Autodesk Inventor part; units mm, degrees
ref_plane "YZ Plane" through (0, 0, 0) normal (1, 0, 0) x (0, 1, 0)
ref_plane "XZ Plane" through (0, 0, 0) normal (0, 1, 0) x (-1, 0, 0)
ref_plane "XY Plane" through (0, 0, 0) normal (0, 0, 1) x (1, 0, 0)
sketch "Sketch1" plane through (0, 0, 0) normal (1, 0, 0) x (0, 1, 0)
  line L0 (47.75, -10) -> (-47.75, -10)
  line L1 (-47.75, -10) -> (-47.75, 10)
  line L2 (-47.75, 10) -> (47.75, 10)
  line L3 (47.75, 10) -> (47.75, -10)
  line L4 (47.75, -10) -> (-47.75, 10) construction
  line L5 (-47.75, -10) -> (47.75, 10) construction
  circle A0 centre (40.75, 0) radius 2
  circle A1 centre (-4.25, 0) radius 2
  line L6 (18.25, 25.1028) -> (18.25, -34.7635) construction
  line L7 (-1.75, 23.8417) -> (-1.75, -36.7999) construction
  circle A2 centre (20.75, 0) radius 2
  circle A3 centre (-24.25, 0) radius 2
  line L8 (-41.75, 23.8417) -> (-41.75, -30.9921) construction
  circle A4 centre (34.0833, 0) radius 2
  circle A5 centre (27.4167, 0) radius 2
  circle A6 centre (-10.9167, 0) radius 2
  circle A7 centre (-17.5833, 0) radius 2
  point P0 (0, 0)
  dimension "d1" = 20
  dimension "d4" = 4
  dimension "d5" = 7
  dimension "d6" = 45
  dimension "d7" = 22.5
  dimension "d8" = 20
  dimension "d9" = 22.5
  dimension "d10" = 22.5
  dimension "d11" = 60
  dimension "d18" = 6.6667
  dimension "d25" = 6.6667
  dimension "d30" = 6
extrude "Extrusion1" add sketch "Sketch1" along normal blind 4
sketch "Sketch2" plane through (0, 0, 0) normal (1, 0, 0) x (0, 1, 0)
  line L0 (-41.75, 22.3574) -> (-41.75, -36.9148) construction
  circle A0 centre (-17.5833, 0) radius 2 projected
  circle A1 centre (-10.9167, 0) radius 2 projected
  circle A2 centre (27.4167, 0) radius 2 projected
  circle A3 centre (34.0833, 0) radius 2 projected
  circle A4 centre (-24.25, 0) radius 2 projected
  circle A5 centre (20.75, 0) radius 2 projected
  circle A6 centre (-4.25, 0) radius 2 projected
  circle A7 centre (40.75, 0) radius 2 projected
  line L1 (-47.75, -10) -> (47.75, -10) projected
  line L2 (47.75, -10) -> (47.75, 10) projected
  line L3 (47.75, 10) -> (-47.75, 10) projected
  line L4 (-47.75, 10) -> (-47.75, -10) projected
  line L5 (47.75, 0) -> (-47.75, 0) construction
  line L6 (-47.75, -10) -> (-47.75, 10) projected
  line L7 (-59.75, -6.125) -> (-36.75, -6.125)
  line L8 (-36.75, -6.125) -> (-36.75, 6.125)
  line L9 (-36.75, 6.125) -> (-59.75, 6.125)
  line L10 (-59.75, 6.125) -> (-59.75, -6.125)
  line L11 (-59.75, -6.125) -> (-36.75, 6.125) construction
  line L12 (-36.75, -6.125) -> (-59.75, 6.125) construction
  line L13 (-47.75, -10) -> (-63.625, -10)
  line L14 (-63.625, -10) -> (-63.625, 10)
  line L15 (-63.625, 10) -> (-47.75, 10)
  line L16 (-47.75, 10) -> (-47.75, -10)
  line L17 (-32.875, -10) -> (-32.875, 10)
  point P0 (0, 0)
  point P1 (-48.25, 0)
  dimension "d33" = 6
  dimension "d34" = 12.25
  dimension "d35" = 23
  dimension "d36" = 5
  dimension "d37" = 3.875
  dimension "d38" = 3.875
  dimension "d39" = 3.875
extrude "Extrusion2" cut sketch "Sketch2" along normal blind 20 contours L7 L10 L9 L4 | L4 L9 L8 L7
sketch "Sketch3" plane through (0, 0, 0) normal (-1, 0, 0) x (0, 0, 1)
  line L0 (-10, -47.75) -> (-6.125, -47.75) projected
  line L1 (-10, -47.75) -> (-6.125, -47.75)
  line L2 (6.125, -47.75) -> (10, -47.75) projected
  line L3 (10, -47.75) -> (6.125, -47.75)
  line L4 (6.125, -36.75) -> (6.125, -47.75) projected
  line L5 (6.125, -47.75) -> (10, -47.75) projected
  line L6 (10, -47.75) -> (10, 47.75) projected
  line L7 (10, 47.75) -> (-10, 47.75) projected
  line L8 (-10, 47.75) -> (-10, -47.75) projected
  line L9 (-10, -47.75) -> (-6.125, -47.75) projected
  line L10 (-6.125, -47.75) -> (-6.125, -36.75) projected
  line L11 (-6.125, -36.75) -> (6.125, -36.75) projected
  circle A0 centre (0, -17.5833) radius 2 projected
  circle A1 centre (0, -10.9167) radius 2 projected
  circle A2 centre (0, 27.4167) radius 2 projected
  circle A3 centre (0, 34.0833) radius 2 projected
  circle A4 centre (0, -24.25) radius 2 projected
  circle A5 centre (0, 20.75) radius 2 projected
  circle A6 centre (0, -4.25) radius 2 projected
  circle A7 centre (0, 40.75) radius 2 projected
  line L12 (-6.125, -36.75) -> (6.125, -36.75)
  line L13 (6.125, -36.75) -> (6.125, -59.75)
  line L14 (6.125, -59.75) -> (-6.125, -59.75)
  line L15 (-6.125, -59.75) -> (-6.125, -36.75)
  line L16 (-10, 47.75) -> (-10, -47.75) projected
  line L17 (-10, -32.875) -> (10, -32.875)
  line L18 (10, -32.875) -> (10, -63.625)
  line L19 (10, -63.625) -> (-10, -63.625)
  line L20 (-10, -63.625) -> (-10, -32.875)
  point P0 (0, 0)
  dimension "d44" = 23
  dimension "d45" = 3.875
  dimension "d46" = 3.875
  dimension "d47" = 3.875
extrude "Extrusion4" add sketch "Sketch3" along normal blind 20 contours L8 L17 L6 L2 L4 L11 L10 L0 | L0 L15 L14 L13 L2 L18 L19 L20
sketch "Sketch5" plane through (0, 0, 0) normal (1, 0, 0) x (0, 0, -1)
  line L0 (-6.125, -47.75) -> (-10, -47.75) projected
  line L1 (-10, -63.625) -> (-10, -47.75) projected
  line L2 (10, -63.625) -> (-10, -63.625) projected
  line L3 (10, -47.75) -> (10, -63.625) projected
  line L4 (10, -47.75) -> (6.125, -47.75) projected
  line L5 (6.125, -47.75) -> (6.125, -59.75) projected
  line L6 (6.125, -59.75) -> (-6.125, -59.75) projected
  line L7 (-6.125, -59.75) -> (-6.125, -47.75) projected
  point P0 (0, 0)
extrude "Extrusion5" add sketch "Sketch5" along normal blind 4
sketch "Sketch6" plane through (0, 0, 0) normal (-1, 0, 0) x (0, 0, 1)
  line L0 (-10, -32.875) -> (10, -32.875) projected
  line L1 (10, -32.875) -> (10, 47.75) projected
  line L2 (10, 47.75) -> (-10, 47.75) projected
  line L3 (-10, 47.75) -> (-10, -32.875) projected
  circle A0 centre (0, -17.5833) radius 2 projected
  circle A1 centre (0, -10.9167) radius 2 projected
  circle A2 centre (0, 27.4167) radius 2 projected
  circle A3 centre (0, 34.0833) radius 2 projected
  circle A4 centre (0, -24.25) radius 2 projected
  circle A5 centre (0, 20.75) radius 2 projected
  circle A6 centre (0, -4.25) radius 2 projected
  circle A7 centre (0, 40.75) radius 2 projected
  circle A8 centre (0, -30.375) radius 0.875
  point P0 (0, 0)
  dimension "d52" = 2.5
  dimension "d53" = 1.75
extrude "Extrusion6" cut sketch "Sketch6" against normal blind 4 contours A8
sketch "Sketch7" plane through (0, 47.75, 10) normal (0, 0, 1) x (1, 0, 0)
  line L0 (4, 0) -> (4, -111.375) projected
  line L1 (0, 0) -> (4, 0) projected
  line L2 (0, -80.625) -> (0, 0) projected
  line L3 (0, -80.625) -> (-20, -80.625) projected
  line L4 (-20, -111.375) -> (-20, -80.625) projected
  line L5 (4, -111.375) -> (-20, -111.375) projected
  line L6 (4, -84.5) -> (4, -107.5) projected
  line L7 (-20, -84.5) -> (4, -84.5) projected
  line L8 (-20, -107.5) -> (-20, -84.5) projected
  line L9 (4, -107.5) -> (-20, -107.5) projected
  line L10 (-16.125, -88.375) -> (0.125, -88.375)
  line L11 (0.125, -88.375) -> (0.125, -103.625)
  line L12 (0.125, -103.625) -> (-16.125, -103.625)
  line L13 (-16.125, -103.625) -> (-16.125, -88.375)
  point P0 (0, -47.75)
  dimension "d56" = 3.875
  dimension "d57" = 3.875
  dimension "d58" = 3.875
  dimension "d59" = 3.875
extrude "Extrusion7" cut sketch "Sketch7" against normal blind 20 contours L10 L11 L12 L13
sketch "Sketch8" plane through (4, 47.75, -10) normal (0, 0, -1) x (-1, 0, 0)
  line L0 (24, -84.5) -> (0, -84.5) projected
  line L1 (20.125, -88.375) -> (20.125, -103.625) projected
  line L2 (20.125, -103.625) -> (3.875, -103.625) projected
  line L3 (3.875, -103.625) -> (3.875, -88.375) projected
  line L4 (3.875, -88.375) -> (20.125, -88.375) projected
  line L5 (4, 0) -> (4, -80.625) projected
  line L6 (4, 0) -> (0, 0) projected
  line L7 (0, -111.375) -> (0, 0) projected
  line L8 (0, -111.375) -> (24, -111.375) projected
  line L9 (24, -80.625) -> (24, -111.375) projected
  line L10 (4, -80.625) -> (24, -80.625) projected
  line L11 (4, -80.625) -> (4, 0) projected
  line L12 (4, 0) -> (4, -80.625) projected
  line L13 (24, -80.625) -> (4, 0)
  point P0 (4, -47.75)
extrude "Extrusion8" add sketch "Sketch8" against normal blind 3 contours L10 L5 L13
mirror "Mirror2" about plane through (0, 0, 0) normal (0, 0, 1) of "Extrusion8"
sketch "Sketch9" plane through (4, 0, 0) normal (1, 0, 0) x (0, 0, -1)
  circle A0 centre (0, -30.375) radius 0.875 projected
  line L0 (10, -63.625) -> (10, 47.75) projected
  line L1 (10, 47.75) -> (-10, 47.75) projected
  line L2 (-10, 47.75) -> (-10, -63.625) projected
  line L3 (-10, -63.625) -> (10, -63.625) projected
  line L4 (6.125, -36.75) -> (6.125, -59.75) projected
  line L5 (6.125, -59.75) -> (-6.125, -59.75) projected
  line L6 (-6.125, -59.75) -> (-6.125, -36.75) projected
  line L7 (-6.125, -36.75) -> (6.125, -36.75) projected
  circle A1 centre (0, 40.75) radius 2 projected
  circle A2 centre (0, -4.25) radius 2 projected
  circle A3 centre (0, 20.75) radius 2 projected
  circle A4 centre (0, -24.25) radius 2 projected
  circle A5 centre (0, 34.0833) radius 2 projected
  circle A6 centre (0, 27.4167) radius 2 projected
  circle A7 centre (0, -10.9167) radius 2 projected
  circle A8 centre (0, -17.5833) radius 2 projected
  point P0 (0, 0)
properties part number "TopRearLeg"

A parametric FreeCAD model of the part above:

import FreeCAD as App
import Part
import Sketcher
from FreeCAD import Vector
Q = App.Units.Quantity

doc = App.newDocument("Part")
body = doc.addObject("PartDesign::Body", "Body")

# Sketch on YZ plane
sketch1 = body.newObject("Sketcher::SketchObject", "Sketch")
sketch1.AttachmentSupport = (doc.getObject("YZ_Plane"), [""])
sketch1.MapMode = "FlatFace"
sketch1.addGeometry(Part.LineSegment(Vector(-47.8, -10, 0), Vector(47.8, -10, 0)), False)
sketch1.addGeometry(Part.LineSegment(Vector(47.8, -10, 0), Vector(47.8, 10, 0)), False)
sketch1.addGeometry(Part.LineSegment(Vector(47.8, 10, 0), Vector(-47.8, 10, 0)), False)
sketch1.addGeometry(Part.LineSegment(Vector(-47.8, 10, 0), Vector(-47.8, -10, 0)), False)
sketch1.addGeometry(Part.Circle(Vector(-24.2, 0, 0), Vector(0, 0, 1), 2), False)
sketch1.addGeometry(Part.Circle(Vector(-17.6, 0, 0), Vector(0, 0, 1), 2), False)
sketch1.addGeometry(Part.Circle(Vector(-10.9, 0, 0), Vector(0, 0, 1), 2), False)
sketch1.addGeometry(Part.Circle(Vector(-4.2, 0, 0), Vector(0, 0, 1), 2), False)
sketch1.addGeometry(Part.Circle(Vector(20.8, 0, 0), Vector(0, 0, 1), 2), False)
sketch1.addGeometry(Part.Circle(Vector(27.4, 0, 0), Vector(0, 0, 1), 2), False)
sketch1.addGeometry(Part.Circle(Vector(34.1, 0, 0), Vector(0, 0, 1), 2), False)
sketch1.addGeometry(Part.Circle(Vector(40.8, 0, 0), Vector(0, 0, 1), 2), False)
sketch1.addConstraint(Sketcher.Constraint("Coincident", 0, 2, 1, 1))
sketch1.addConstraint(Sketcher.Constraint("Coincident", 1, 2, 2, 1))
sketch1.addConstraint(Sketcher.Constraint("Coincident", 2, 2, 3, 1))
sketch1.addConstraint(Sketcher.Constraint("Coincident", 3, 2, 0, 1))
sketch1.addConstraint(Sketcher.Constraint("Horizontal", 0))
sketch1.addConstraint(Sketcher.Constraint("Vertical", 1))
sketch1.addConstraint(Sketcher.Constraint("Horizontal", 2))
sketch1.addConstraint(Sketcher.Constraint("Vertical", 3))
sketch1.addConstraint(Sketcher.Constraint("Equal", 4, 5))
sketch1.addConstraint(Sketcher.Constraint("Equal", 5, 6))
sketch1.addConstraint(Sketcher.Constraint("Equal", 6, 7))
sketch1.addConstraint(Sketcher.Constraint("Equal", 7, 8))
sketch1.addConstraint(Sketcher.Constraint("Equal", 8, 9))
sketch1.addConstraint(Sketcher.Constraint("Equal", 9, 10))
sketch1.addConstraint(Sketcher.Constraint("Equal", 10, 11))
sketch1.addConstraint(Sketcher.Constraint("Symmetric", 0, 2, 2, 2, -1, 1))
sketch1.addConstraint(Sketcher.Constraint("PointOnObject", 4, 3, -1))
sketch1.addConstraint(Sketcher.Constraint("PointOnObject", 5, 3, -1))
sketch1.addConstraint(Sketcher.Constraint("PointOnObject", 6, 3, -1))
sketch1.addConstraint(Sketcher.Constraint("PointOnObject", 7, 3, -1))
sketch1.addConstraint(Sketcher.Constraint("PointOnObject", 8, 3, -1))
sketch1.addConstraint(Sketcher.Constraint("PointOnObject", 9, 3, -1))
sketch1.addConstraint(Sketcher.Constraint("PointOnObject", 10, 3, -1))
sketch1.addConstraint(Sketcher.Constraint("PointOnObject", 11, 3, -1))
sketch1.addConstraint(Sketcher.Constraint("Diameter", 4, Q("4 mm")))
sketch1.addConstraint(Sketcher.Constraint("DistanceY", 1, 1, 1, 2, Q("20 mm")))
sketch1.addConstraint(Sketcher.Constraint("DistanceX", 4, 3, 7, 3, Q("20 mm")))
sketch1.addConstraint(Sketcher.Constraint("DistanceX", 4, 3, 8, 3, Q("45 mm")))
sketch1.addConstraint(Sketcher.Constraint("DistanceX", 5, 3, 9, 3, Q("45 mm")))
sketch1.addConstraint(Sketcher.Constraint("DistanceX", 6, 3, 10, 3, Q("45 mm")))
sketch1.addConstraint(Sketcher.Constraint("DistanceX", 8, 3, 11, 3, Q("20 mm")))
sketch1.addConstraint(Sketcher.Constraint("DistanceX", 11, 3, 0, 2, Q("7 mm")))
sketch1.addConstraint(Sketcher.Constraint("DistanceX", 0, 1, 0, 2, Q("95.5 mm")))
sketch1.addConstraint(Sketcher.Constraint("DistanceX", 4, 3, 5, 3, Q("6.6667 mm")))
sketch1.addConstraint(Sketcher.Constraint("DistanceX", 5, 3, 6, 3, Q("6.6666 mm")))
pad1 = body.newObject("PartDesign::Pad", "Pad")
pad1.Profile = sketch1
pad1.Length = 4

# Sketch on YZ plane
sketch2 = body.newObject("Sketcher::SketchObject", "Sketch001")
sketch2.AttachmentSupport = (doc.getObject("YZ_Plane"), [""])
sketch2.MapMode = "FlatFace"
sketch2.addGeometry(Part.LineSegment(Vector(-60, -6, 0), Vector(-37, -6, 0)), False)
sketch2.addGeometry(Part.LineSegment(Vector(-37, -6, 0), Vector(-37, 6, 0)), False)
sketch2.addGeometry(Part.LineSegment(Vector(-37, 6, 0), Vector(-60, 6, 0)), False)
sketch2.addGeometry(Part.LineSegment(Vector(-60, 6, 0), Vector(-60, -6, 0)), False)
sketch2.addConstraint(Sketcher.Constraint("Coincident", 0, 2, 1, 1))
sketch2.addConstraint(Sketcher.Constraint("Coincident", 1, 2, 2, 1))
sketch2.addConstraint(Sketcher.Constraint("Coincident", 2, 2, 3, 1))
sketch2.addConstraint(Sketcher.Constraint("Coincident", 3, 2, 0, 1))
sketch2.addConstraint(Sketcher.Constraint("Horizontal", 0))
sketch2.addConstraint(Sketcher.Constraint("Vertical", 1))
sketch2.addConstraint(Sketcher.Constraint("Horizontal", 2))
sketch2.addConstraint(Sketcher.Constraint("Vertical", 3))
sketch2.addConstraint(Sketcher.Constraint("DistanceX", 0, 1, 0, 2, Q("23 mm")))
sketch2.addConstraint(Sketcher.Constraint("DistanceY", 1, 1, 1, 2, Q("12.25 mm")))
sketch2.addConstraint(Sketcher.Constraint("DistanceX", 0, 2, -1, 1, Q("36.75 mm")))
sketch2.addConstraint(Sketcher.Constraint("DistanceY", 0, 2, -1, 1, Q("6.125 mm")))
pocket1 = body.newObject("PartDesign::Pocket", "Pocket")
pocket1.Profile = sketch2
pocket1.Length = 20
pocket1.Reversed = True

# Sketch on YZ plane
sketch3 = body.newObject("Sketcher::SketchObject", "Sketch002")
sketch3.AttachmentSupport = (doc.getObject("YZ_Plane"), [""])
sketch3.MapMode = "FlatFace"
sketch3.addGeometry(Part.LineSegment(Vector(-33, -10, 0), Vector(-64, -10, 0)), False)
sketch3.addGeometry(Part.LineSegment(Vector(-64, -10, 0), Vector(-64, 10, 0)), False)
sketch3.addGeometry(Part.LineSegment(Vector(-64, 10, 0), Vector(-33, 10, 0)), False)
sketch3.addGeometry(Part.LineSegment(Vector(-33, 10, 0), Vector(-33, -10, 0)), False)
sketch3.addGeometry(Part.LineSegment(Vector(-37, 6, 0), Vector(-60, 6, 0)), False)
sketch3.addGeometry(Part.LineSegment(Vector(-60, 6, 0), Vector(-60, -6, 0)), False)
sketch3.addGeometry(Part.LineSegment(Vector(-60, -6, 0), Vector(-37, -6, 0)), False)
sketch3.addGeometry(Part.LineSegment(Vector(-37, -6, 0), Vector(-37, 6, 0)), False)
sketch3.addConstraint(Sketcher.Constraint("Coincident", 0, 2, 1, 1))
sketch3.addConstraint(Sketcher.Constraint("Coincident", 1, 2, 2, 1))
sketch3.addConstraint(Sketcher.Constraint("Coincident", 2, 2, 3, 1))
sketch3.addConstraint(Sketcher.Constraint("Coincident", 3, 2, 0, 1))
sketch3.addConstraint(Sketcher.Constraint("Coincident", 4, 2, 5, 1))
sketch3.addConstraint(Sketcher.Constraint("Coincident", 5, 2, 6, 1))
sketch3.addConstraint(Sketcher.Constraint("Coincident", 6, 2, 7, 1))
sketch3.addConstraint(Sketcher.Constraint("Coincident", 7, 2, 4, 1))
sketch3.addConstraint(Sketcher.Constraint("Horizontal", 0))
sketch3.addConstraint(Sketcher.Constraint("Vertical", 1))
sketch3.addConstraint(Sketcher.Constraint("Horizontal", 2))
sketch3.addConstraint(Sketcher.Constraint("Vertical", 3))
sketch3.addConstraint(Sketcher.Constraint("Horizontal", 4))
sketch3.addConstraint(Sketcher.Constraint("Vertical", 5))
sketch3.addConstraint(Sketcher.Constraint("Horizontal", 6))
sketch3.addConstraint(Sketcher.Constraint("Vertical", 7))
sketch3.addConstraint(Sketcher.Constraint("DistanceX", 4, 2, 4, 1, Q("23 mm")))
sketch3.addConstraint(Sketcher.Constraint("DistanceY", 1, 1, 1, 2, Q("20 mm")))
sketch3.addConstraint(Sketcher.Constraint("DistanceY", 0, 2, -1, 1, Q("10 mm")))
sketch3.addConstraint(Sketcher.Constraint("DistanceX", 1, 2, 4, 2, Q("3.875 mm")))
sketch3.addConstraint(Sketcher.Constraint("DistanceY", 4, 2, 1, 2, Q("3.875 mm")))
sketch3.addConstraint(Sketcher.Constraint("DistanceY", 0, 2, 5, 2, Q("3.875 mm")))
sketch3.addConstraint(Sketcher.Constraint("DistanceX", 6, 2, 3, 2, Q("3.875 mm")))
sketch3.addConstraint(Sketcher.Constraint("DistanceX", 4, 2, -1, 1, Q("59.75 mm")))
pad2 = body.newObject("PartDesign::Pad", "Pad001")
pad2.Profile = sketch3
pad2.Length = 20
pad2.Reversed = True

# Sketch on YZ plane
sketch4 = body.newObject("Sketcher::SketchObject", "Sketch003")
sketch4.AttachmentSupport = (doc.getObject("YZ_Plane"), [""])
sketch4.MapMode = "FlatFace"
sketch4.addGeometry(Part.LineSegment(Vector(-59.8, 6.1, 0), Vector(-47.8, 6.1, 0)), False)
sketch4.addGeometry(Part.LineSegment(Vector(-47.8, 6.1, 0), Vector(-47.8, 10, 0)), False)
sketch4.addGeometry(Part.LineSegment(Vector(-47.8, 10, 0), Vector(-63.6, 10, 0)), False)
sketch4.addGeometry(Part.LineSegment(Vector(-63.6, 10, 0), Vector(-63.6, -10, 0)), False)
sketch4.addGeometry(Part.LineSegment(Vector(-63.6, -10, 0), Vector(-47.8, -10, 0)), False)
sketch4.addGeometry(Part.LineSegment(Vector(-47.8, -10, 0), Vector(-47.8, -6.1, 0)), False)
sketch4.addGeometry(Part.LineSegment(Vector(-47.8, -6.1, 0), Vector(-59.8, -6.1, 0)), False)
sketch4.addGeometry(Part.LineSegment(Vector(-59.8, -6.1, 0), Vector(-59.8, 6.1, 0)), False)
sketch4.addConstraint(Sketcher.Constraint("Coincident", 0, 2, 1, 1))
sketch4.addConstraint(Sketcher.Constraint("Coincident", 1, 2, 2, 1))
sketch4.addConstraint(Sketcher.Constraint("Coincident", 2, 2, 3, 1))
sketch4.addConstraint(Sketcher.Constraint("Coincident", 3, 2, 4, 1))
sketch4.addConstraint(Sketcher.Constraint("Coincident", 4, 2, 5, 1))
sketch4.addConstraint(Sketcher.Constraint("Coincident", 5, 2, 6, 1))
sketch4.addConstraint(Sketcher.Constraint("Coincident", 6, 2, 7, 1))
sketch4.addConstraint(Sketcher.Constraint("Coincident", 7, 2, 0, 1))
sketch4.addConstraint(Sketcher.Constraint("Horizontal", 0))
sketch4.addConstraint(Sketcher.Constraint("Vertical", 1))
sketch4.addConstraint(Sketcher.Constraint("Horizontal", 2))
sketch4.addConstraint(Sketcher.Constraint("Vertical", 3))
sketch4.addConstraint(Sketcher.Constraint("Horizontal", 4))
sketch4.addConstraint(Sketcher.Constraint("Vertical", 5))
sketch4.addConstraint(Sketcher.Constraint("Horizontal", 6))
sketch4.addConstraint(Sketcher.Constraint("Vertical", 7))
sketch4.addConstraint(Sketcher.Constraint("Symmetric", 1, 2, 4, 2, -1))
sketch4.addConstraint(Sketcher.Constraint("Equal", 1, 5))
sketch4.addConstraint(Sketcher.Constraint("DistanceX", 0, 1, 0, 2, Q("12 mm")))
sketch4.addConstraint(Sketcher.Constraint("DistanceY", 3, 2, 3, 1, Q("20 mm")))
sketch4.addConstraint(Sketcher.Constraint("DistanceY", 7, 1, 7, 2, Q("12.25 mm")))
sketch4.addConstraint(Sketcher.Constraint("DistanceX", 2, 2, 2, 1, Q("15.875 mm")))
sketch4.addConstraint(Sketcher.Constraint("DistanceX", 0, 2, -1, 1, Q("47.75 mm")))
pad3 = body.newObject("PartDesign::Pad", "Pad002")
pad3.Profile = sketch4
pad3.Length = 4

# Sketch on YZ plane
sketch5 = body.newObject("Sketcher::SketchObject", "Sketch004")
sketch5.AttachmentSupport = (doc.getObject("YZ_Plane"), [""])
sketch5.MapMode = "FlatFace"
sketch5.addGeometry(Part.Circle(Vector(-30.4, 0, 0), Vector(0, 0, 1), 0.9), False)
sketch5.addConstraint(Sketcher.Constraint("PointOnObject", 0, 3, -1))
sketch5.addConstraint(Sketcher.Constraint("Diameter", 0, Q("1.75 mm")))
sketch5.addConstraint(Sketcher.Constraint("DistanceX", 0, 3, -1, 1, Q("30.375 mm")))
pocket2 = body.newObject("PartDesign::Pocket", "Pocket001")
pocket2.Profile = sketch5
pocket2.Length = 4
pocket2.Reversed = True

# Sketch on XY plane
sketch6 = body.newObject("Sketcher::SketchObject", "Sketch005")
sketch6.AttachmentSupport = (doc.getObject("XY_Plane"), [""])
sketch6.MapMode = "FlatFace"
sketch6.AttachmentOffset = App.Placement(Vector(0, 0, 10), App.Rotation())
sketch6.addGeometry(Part.LineSegment(Vector(0, -41, 0), Vector(-16, -41, 0)), False)
sketch6.addGeometry(Part.LineSegment(Vector(-16, -41, 0), Vector(-16, -56, 0)), False)
sketch6.addGeometry(Part.LineSegment(Vector(-16, -56, 0), Vector(0, -56, 0)), False)
sketch6.addGeometry(Part.LineSegment(Vector(0, -56, 0), Vector(0, -41, 0)), False)
sketch6.addConstraint(Sketcher.Constraint("Coincident", 0, 2, 1, 1))
sketch6.addConstraint(Sketcher.Constraint("Coincident", 1, 2, 2, 1))
sketch6.addConstraint(Sketcher.Constraint("Coincident", 2, 2, 3, 1))
sketch6.addConstraint(Sketcher.Constraint("Coincident", 3, 2, 0, 1))
sketch6.addConstraint(Sketcher.Constraint("Horizontal", 0))
sketch6.addConstraint(Sketcher.Constraint("Vertical", 1))
sketch6.addConstraint(Sketcher.Constraint("Horizontal", 2))
sketch6.addConstraint(Sketcher.Constraint("Vertical", 3))
sketch6.addConstraint(Sketcher.Constraint("DistanceX", 0, 2, 0, 1, Q("16.25 mm")))
sketch6.addConstraint(Sketcher.Constraint("DistanceY", 1, 2, 1, 1, Q("15.25 mm")))
sketch6.addConstraint(Sketcher.Constraint("DistanceX", 0, 2, -1, 1, Q("16.125 mm")))
sketch6.addConstraint(Sketcher.Constraint("DistanceY", 0, 2, -1, 1, Q("40.625 mm")))
pocket3 = body.newObject("PartDesign::Pocket", "Pocket002")
pocket3.Profile = sketch6
pocket3.Length = 20

# Sketch on XY plane
sketch7 = body.newObject("Sketcher::SketchObject", "Sketch006")
sketch7.AttachmentSupport = (doc.getObject("XY_Plane"), [""])
sketch7.MapMode = "FlatFace"
sketch7.AttachmentOffset = App.Placement(Vector(0, 0, -10), App.Rotation())
sketch7.addGeometry(Part.LineSegment(Vector(0, -33, 0), Vector(-20, -33, 0)), False)
sketch7.addGeometry(Part.LineSegment(Vector(-20, -33, 0), Vector(0, 48, 0)), False)
sketch7.addGeometry(Part.LineSegment(Vector(0, 48, 0), Vector(0, -33, 0)), False)
sketch7.addConstraint(Sketcher.Constraint("Coincident", 0, 2, 1, 1))
sketch7.addConstraint(Sketcher.Constraint("Coincident", 1, 2, 2, 1))
sketch7.addConstraint(Sketcher.Constraint("Coincident", 2, 2, 0, 1))
sketch7.addConstraint(Sketcher.Constraint("Horizontal", 0))
sketch7.addConstraint(Sketcher.Constraint("Vertical", 2))
sketch7.addConstraint(Sketcher.Constraint("PointOnObject", 1, 2, -2))
sketch7.addConstraint(Sketcher.Constraint("DistanceX", 0, 2, 0, 1, Q("20 mm")))
sketch7.addConstraint(Sketcher.Constraint("DistanceY", 2, 2, 2, 1, Q("80.625 mm")))
sketch7.addConstraint(Sketcher.Constraint("DistanceY", -1, 1, 1, 2, Q("47.75 mm")))
pad4 = body.newObject("PartDesign::Pad", "Pad003")
pad4.Profile = sketch7
pad4.Length = 3
doc.recompute()

mirrored = body.newObject("PartDesign::Mirrored", "Mirrored")
mirrored.Originals = [pad4]
mirrored.MirrorPlane = (doc.getObject("XY_Plane"), [""])
body.Tip = mirrored

doc.recompute()
